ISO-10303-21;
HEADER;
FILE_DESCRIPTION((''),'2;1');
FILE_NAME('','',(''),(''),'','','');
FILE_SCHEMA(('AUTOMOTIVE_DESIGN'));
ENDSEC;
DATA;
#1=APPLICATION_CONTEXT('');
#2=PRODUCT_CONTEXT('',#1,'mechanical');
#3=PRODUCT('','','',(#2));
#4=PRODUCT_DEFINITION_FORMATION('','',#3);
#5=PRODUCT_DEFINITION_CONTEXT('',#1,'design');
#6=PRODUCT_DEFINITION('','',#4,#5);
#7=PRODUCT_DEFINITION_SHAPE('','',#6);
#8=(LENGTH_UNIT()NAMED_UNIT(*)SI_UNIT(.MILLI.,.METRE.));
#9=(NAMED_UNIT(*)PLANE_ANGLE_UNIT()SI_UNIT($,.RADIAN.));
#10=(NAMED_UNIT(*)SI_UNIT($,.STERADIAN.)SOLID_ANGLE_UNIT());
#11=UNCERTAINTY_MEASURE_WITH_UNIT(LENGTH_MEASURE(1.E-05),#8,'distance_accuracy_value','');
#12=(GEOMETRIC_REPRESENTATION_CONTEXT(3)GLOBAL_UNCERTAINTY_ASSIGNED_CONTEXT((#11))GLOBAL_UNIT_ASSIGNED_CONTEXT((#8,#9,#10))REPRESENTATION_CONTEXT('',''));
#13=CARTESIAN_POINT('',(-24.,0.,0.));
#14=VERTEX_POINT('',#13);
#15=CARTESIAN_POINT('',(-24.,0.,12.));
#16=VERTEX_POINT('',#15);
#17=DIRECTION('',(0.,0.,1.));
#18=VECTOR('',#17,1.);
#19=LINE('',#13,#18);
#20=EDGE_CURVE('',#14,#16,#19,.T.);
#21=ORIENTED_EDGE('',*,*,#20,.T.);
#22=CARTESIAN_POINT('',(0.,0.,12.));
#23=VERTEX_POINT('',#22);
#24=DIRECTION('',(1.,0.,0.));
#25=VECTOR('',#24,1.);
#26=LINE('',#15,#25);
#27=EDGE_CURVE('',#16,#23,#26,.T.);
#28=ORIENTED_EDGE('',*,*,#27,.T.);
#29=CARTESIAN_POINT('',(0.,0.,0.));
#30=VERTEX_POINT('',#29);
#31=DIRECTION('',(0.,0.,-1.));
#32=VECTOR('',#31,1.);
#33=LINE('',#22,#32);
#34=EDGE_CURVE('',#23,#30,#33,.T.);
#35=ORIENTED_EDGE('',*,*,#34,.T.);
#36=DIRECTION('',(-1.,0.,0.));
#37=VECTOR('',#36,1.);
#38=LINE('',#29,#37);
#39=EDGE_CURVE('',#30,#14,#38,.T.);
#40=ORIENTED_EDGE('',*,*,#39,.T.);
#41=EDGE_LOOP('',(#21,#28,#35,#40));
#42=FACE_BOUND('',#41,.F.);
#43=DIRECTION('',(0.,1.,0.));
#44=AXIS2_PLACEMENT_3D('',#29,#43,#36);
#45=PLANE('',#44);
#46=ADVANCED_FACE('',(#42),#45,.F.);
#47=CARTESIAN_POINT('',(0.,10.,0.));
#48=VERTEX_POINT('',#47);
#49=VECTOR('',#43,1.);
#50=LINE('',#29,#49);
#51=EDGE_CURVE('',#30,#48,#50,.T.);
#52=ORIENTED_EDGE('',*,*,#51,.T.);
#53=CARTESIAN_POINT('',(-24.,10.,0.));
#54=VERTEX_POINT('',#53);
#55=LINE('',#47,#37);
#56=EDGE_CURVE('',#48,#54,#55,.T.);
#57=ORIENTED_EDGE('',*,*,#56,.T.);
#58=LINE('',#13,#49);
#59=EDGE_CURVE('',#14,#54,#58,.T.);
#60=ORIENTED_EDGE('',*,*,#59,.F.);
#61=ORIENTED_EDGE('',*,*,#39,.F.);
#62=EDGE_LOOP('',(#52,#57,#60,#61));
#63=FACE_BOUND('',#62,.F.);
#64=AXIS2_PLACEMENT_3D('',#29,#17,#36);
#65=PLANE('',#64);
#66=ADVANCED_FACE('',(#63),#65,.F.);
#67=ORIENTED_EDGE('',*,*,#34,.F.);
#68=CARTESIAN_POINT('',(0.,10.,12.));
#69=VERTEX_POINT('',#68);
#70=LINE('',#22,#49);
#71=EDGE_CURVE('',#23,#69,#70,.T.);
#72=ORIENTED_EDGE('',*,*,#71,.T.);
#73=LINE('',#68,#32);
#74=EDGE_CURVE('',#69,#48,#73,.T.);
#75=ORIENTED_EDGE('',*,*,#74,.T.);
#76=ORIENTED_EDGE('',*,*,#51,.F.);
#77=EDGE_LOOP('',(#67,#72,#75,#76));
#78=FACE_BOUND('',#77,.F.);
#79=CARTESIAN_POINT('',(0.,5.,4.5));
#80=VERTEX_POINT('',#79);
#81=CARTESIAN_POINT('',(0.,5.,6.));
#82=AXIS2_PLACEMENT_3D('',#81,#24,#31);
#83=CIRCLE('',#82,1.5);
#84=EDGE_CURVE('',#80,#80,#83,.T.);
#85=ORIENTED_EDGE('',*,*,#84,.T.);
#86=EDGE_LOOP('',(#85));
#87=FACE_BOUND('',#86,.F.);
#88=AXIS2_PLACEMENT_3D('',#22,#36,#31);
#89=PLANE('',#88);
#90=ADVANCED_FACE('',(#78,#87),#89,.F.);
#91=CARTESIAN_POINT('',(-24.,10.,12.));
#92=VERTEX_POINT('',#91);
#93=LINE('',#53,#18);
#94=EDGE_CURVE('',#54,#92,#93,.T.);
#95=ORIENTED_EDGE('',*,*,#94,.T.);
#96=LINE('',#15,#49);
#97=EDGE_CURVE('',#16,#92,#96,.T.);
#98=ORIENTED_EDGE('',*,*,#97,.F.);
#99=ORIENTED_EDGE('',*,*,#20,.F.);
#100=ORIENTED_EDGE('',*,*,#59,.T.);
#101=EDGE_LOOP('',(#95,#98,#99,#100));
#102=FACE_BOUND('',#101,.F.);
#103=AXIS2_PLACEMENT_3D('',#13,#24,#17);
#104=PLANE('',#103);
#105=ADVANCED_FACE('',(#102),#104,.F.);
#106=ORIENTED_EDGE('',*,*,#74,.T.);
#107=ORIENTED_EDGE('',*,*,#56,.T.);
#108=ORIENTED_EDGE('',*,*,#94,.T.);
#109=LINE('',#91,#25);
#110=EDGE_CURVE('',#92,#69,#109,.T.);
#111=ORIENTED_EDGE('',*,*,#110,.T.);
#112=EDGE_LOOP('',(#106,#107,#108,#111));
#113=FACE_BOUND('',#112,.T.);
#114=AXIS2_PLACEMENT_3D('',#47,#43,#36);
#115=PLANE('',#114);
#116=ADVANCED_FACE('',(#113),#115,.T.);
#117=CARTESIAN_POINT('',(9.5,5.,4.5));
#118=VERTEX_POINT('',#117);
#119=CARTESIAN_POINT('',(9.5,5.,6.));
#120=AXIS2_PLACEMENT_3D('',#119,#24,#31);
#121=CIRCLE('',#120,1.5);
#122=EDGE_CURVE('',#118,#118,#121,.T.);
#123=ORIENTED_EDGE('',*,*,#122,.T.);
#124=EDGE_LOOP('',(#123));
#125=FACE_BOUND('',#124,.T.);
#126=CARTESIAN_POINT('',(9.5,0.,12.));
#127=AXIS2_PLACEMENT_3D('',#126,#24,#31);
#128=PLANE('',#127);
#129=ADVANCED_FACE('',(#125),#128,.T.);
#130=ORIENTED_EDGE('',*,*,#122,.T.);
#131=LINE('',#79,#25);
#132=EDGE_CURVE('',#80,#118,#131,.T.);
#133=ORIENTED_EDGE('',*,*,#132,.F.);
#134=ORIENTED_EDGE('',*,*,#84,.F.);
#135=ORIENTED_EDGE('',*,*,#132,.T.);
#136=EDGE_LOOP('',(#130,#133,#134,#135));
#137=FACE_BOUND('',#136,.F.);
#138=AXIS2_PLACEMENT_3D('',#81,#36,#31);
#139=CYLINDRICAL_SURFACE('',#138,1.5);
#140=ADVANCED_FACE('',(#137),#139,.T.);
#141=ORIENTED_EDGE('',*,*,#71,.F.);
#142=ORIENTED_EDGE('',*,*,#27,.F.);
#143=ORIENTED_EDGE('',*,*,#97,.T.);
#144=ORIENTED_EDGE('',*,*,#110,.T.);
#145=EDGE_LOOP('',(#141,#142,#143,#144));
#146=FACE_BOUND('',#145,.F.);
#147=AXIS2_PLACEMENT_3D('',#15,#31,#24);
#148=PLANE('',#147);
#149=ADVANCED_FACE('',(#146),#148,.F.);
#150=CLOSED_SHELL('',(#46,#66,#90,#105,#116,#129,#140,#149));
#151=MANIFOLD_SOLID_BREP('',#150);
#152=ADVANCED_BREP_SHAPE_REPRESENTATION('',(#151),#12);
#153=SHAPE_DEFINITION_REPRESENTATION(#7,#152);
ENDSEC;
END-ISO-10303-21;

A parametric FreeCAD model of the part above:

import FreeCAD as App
import Part
import Sketcher
from FreeCAD import Vector
Q = App.Units.Quantity

doc = App.newDocument("Part")
body = doc.addObject("PartDesign::Body", "Body")

# Sketch on XZ plane
sketch1 = doc.addObject("Sketcher::SketchObject", "Sketch")
body.addObject(sketch1)
sketch1.AttachmentSupport = (doc.XZ_Plane, [""])
sketch1.MapMode = "FlatFace"
sketch1.addGeometry([
    Part.LineSegment(Vector(0, 12, 0), Vector(0, 0, 0)),
    Part.LineSegment(Vector(0, 0, 0), Vector(-24, 0, 0)),
    Part.LineSegment(Vector(-24, 0, 0), Vector(-24, 12, 0)),
    Part.LineSegment(Vector(-24, 12, 0), Vector(0, 12, 0)),
], False)
sketch1.addConstraint([
    Sketcher.Constraint("Coincident", 0, 2, 1, 1),
    Sketcher.Constraint("Coincident", 1, 2, 2, 1),
    Sketcher.Constraint("Coincident", 2, 2, 3, 1),
    Sketcher.Constraint("Coincident", 3, 2, 0, 1),
    Sketcher.Constraint("Vertical", 0),
    Sketcher.Constraint("Horizontal", 1),
    Sketcher.Constraint("Vertical", 2),
    Sketcher.Constraint("Horizontal", 3),
    Sketcher.Constraint("Coincident", 0, 2, -1, 1),
    Sketcher.Constraint("DistanceX", 1, 2, 1, 1, Q("24 mm")),
    Sketcher.Constraint("DistanceY", 0, 2, 0, 1, Q("12 mm")),
])
pad1 = doc.addObject("PartDesign::Pad", "Pad")
body.addObject(pad1)
pad1.Profile = sketch1
pad1.Length = 10
pad1.Reversed = True

# Sketch on YZ plane
sketch2 = doc.addObject("Sketcher::SketchObject", "Sketch001")
body.addObject(sketch2)
sketch2.AttachmentSupport = (doc.YZ_Plane, [""])
sketch2.MapMode = "FlatFace"
sketch2.addGeometry(Part.Circle(Vector(5, 6, 0), Vector(0, 0, 1), 1.5), False)
sketch2.addConstraint([
    Sketcher.Constraint("Diameter", 0, Q("3 mm")),
    Sketcher.Constraint("DistanceX", -1, 1, 0, 3, Q("5 mm")),
    Sketcher.Constraint("DistanceY", -1, 1, 0, 3, Q("6 mm")),
])
pad2 = doc.addObject("PartDesign::Pad", "Pad001")
body.addObject(pad2)
pad2.Profile = sketch2
pad2.Length = 9.5

doc.recompute()
